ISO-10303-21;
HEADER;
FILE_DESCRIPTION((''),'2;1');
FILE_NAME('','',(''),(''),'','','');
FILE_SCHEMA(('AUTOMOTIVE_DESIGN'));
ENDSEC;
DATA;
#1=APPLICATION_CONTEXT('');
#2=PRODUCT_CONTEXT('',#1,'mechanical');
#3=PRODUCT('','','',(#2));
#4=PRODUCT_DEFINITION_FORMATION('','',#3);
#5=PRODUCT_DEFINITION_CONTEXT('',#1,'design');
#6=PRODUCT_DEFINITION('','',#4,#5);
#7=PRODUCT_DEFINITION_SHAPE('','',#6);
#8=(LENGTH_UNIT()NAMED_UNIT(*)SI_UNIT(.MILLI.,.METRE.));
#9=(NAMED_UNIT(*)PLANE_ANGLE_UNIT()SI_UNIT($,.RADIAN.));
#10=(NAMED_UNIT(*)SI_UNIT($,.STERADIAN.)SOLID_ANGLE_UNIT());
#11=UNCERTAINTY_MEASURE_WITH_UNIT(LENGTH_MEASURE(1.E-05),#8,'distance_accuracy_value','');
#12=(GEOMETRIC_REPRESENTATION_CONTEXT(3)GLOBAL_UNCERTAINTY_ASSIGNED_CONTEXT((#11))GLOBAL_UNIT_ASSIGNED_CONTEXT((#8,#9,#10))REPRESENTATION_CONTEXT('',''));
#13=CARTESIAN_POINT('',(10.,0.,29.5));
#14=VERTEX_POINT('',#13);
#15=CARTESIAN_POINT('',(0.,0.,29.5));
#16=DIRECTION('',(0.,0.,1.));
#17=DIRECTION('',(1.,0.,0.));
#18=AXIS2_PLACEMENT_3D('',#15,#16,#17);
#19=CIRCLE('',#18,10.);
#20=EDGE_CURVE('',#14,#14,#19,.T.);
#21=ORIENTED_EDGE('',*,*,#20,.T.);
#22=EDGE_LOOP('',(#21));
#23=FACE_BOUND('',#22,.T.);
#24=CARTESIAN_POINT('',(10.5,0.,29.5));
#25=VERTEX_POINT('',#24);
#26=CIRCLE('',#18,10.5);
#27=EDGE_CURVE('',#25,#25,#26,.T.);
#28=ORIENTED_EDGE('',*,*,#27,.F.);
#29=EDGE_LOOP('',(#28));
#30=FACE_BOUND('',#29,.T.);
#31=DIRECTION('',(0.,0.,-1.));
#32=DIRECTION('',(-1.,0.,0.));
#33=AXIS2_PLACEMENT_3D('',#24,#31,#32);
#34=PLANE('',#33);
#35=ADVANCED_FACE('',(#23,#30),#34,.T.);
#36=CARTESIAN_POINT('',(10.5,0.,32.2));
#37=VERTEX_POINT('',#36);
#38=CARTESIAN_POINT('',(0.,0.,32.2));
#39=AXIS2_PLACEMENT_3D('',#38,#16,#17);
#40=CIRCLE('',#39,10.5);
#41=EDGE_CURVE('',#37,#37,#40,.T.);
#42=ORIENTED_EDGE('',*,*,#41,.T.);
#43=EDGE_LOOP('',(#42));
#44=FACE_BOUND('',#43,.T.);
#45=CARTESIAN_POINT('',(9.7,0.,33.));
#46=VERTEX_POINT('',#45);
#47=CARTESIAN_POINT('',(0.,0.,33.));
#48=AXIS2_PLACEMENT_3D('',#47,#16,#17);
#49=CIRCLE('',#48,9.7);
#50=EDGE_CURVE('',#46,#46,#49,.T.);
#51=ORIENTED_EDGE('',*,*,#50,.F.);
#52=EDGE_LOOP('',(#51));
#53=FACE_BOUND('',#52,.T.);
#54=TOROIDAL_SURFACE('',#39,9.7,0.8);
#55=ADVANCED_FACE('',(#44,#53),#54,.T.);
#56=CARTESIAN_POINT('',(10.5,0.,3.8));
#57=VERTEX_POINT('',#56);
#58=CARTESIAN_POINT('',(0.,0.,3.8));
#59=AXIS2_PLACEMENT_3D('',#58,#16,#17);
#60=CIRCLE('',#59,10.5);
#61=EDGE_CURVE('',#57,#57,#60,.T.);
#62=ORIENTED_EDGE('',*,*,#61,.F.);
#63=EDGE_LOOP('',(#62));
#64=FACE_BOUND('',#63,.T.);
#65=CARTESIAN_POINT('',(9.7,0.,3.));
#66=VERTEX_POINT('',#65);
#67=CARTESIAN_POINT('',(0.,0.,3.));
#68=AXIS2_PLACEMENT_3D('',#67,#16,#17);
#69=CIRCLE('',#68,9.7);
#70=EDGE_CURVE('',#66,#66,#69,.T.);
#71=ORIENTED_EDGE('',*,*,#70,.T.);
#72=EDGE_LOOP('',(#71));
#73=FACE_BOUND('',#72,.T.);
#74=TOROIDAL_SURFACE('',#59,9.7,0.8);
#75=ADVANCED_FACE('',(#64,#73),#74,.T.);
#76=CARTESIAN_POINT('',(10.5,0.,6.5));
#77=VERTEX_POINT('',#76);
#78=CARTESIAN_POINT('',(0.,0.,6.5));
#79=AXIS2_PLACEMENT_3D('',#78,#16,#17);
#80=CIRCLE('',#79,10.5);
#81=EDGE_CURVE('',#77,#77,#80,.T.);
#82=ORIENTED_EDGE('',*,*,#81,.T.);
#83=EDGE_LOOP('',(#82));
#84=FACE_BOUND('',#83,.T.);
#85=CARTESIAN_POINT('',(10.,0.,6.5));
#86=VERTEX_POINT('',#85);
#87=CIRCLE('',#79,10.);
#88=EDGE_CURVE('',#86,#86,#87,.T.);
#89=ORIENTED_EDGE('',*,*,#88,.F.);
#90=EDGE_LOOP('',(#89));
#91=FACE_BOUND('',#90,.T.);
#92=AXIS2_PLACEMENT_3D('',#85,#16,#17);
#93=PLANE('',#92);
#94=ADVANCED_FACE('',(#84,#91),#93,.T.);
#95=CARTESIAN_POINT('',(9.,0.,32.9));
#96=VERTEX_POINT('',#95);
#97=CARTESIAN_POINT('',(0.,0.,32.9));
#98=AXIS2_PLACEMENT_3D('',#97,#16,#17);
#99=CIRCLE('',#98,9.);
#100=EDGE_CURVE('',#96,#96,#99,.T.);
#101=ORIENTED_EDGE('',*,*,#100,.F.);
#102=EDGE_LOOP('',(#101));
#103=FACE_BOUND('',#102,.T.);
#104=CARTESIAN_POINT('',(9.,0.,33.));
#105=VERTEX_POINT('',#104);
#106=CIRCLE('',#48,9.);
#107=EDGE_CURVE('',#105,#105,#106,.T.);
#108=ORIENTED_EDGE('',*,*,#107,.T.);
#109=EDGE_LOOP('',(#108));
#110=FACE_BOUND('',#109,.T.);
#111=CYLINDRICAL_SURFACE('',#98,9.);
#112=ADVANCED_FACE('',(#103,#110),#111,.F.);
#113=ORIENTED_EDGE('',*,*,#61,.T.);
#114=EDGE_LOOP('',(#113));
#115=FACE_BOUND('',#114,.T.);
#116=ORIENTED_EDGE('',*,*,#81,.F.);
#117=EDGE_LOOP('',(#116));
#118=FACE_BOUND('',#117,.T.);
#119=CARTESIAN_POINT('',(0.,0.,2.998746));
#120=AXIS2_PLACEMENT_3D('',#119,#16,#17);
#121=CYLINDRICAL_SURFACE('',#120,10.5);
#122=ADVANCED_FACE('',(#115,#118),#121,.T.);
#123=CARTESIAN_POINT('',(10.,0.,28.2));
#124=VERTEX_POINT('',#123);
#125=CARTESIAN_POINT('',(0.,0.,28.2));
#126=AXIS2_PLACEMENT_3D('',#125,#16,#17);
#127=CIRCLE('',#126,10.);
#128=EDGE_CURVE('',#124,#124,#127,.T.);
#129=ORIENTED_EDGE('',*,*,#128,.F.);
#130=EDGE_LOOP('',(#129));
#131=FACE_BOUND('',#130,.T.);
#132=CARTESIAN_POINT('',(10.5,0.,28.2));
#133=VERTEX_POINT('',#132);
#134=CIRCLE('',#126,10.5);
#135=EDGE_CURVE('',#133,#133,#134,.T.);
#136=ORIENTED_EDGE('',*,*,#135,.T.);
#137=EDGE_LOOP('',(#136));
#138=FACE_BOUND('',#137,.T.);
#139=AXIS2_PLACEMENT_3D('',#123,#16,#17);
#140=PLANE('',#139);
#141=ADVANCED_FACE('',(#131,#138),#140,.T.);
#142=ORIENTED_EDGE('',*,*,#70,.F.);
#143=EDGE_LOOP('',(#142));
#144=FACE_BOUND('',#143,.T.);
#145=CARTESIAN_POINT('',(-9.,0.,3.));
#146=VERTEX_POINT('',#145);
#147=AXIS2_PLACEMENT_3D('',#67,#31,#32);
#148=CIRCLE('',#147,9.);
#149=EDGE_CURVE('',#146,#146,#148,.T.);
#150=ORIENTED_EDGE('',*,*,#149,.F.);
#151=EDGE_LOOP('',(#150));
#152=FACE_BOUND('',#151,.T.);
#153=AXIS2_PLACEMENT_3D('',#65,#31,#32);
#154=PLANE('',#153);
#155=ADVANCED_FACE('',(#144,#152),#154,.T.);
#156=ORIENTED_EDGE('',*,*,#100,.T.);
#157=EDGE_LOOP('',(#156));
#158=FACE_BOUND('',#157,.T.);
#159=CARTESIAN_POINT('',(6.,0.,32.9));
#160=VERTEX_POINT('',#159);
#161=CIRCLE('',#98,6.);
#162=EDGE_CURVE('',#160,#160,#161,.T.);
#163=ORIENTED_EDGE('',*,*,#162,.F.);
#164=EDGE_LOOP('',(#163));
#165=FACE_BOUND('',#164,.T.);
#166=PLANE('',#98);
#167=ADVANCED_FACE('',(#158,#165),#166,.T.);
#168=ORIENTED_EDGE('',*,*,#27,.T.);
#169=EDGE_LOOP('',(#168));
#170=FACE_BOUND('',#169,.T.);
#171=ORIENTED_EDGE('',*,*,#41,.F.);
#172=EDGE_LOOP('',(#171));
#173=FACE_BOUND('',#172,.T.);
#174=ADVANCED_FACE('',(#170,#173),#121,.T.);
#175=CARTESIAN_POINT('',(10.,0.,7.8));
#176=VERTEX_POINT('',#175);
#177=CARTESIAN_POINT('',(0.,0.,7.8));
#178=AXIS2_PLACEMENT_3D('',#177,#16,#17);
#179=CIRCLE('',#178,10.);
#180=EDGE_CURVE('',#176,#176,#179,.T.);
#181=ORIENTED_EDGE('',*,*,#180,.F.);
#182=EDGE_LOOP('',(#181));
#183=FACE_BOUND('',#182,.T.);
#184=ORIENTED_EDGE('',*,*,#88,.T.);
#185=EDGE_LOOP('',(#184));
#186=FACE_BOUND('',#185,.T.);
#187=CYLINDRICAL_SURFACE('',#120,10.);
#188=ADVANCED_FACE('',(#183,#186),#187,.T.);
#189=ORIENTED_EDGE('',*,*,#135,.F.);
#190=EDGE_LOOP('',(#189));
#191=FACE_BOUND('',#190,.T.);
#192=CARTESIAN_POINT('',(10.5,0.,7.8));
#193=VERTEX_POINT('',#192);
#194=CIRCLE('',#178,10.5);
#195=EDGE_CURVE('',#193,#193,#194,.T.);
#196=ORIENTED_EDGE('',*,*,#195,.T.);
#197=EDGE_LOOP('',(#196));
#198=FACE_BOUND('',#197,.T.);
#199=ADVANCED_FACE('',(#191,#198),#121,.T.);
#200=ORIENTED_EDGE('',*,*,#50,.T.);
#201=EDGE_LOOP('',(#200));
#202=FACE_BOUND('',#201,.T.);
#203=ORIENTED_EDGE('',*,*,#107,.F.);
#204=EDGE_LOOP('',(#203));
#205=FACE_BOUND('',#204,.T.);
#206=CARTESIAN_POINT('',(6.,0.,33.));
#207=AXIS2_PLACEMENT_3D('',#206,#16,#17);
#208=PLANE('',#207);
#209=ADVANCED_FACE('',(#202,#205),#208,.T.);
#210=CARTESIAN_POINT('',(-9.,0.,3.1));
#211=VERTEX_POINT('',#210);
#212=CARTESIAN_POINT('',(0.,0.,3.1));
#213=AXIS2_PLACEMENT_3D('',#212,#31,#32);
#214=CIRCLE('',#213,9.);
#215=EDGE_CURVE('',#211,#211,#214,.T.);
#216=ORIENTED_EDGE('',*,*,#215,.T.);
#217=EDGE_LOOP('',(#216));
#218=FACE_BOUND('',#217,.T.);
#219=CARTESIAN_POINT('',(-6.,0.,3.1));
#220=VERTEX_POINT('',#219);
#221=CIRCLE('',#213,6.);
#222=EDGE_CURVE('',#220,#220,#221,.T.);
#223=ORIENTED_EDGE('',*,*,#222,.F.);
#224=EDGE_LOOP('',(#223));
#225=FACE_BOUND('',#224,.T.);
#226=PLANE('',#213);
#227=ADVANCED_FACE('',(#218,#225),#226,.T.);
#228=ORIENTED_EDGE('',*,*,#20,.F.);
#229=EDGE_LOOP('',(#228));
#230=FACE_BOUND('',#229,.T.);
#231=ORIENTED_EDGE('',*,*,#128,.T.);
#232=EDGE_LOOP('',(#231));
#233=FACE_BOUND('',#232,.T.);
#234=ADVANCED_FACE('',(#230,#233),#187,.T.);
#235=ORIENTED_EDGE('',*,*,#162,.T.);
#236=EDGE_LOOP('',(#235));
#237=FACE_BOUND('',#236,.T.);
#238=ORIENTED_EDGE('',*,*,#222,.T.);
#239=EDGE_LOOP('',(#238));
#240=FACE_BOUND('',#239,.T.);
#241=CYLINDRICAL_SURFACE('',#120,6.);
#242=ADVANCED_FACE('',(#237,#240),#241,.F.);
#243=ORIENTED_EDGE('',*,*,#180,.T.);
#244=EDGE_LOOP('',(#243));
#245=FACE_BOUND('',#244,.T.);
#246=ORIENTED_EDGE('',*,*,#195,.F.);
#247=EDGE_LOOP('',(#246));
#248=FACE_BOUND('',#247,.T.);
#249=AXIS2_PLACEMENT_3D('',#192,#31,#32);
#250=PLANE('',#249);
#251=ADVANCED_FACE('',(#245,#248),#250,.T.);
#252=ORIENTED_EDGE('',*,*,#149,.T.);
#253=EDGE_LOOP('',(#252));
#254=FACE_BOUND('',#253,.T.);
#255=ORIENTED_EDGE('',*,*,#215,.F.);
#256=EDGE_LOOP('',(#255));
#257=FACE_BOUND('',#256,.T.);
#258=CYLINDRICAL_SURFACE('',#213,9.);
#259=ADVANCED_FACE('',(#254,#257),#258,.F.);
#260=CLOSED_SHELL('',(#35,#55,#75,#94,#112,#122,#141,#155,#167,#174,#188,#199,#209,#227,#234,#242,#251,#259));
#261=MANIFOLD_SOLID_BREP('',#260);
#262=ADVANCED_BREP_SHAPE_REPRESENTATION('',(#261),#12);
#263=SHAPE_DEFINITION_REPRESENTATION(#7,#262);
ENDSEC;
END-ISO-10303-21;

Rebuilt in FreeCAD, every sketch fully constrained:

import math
import FreeCAD as App
import Part
import Sketcher
from FreeCAD import Vector

doc = App.newDocument("Part")
body = doc.addObject("PartDesign::Body", "Body")

# Sketch on XZ plane
sketch1 = doc.addObject("Sketcher::SketchObject", "Sketch")
body.addObject(sketch1)
sketch1.AttachmentSupport = (doc.XZ_Plane, [""])
sketch1.MapMode = "FlatFace"
sketch1.addGeometry([
    Part.LineSegment(Vector(9.7, 3, 0), Vector(6, 3, 0)),  # 0
    Part.LineSegment(Vector(6, 3, 0), Vector(6, 33, 0)),  # 1
    Part.LineSegment(Vector(6, 33, 0), Vector(9.7, 33, 0)),  # 2
    Part.ArcOfCircle(Part.Circle(Vector(9.7, 32.2, 0), Vector(0, 0, 1), 0.8), math.radians(0), math.radians(90)),  # 3
    Part.LineSegment(Vector(10.5, 32.2, 0), Vector(10.5, 29.5, 0)),  # 4
    Part.LineSegment(Vector(10.5, 29.5, 0), Vector(10, 29.5, 0)),  # 5
    Part.LineSegment(Vector(10, 29.5, 0), Vector(10, 28.2, 0)),  # 6
    Part.LineSegment(Vector(10, 28.2, 0), Vector(10.5, 28.2, 0)),  # 7
    Part.LineSegment(Vector(10.5, 28.2, 0), Vector(10.5, 7.8, 0)),  # 8
    Part.LineSegment(Vector(10.5, 7.8, 0), Vector(10, 7.8, 0)),  # 9
    Part.LineSegment(Vector(10, 7.8, 0), Vector(10, 6.5, 0)),  # 10
    Part.LineSegment(Vector(10, 6.5, 0), Vector(10.5, 6.5, 0)),  # 11
    Part.LineSegment(Vector(10.5, 6.5, 0), Vector(10.5, 3.8, 0)),  # 12
    Part.ArcOfCircle(Part.Circle(Vector(9.7, 3.8, 0), Vector(0, 0, 1), 0.8), math.radians(-90), math.radians(0)),  # 13
], False)
sketch1.addConstraint([
    Sketcher.Constraint("Coincident", 0, 2, 1, 1),
    Sketcher.Constraint("Coincident", 1, 2, 2, 1),
    Sketcher.Constraint("Tangent", 2, 2, 3, 2),
    Sketcher.Constraint("Tangent", 3, 1, 4, 1),
    Sketcher.Constraint("Coincident", 4, 2, 5, 1),
    Sketcher.Constraint("Coincident", 5, 2, 6, 1),
    Sketcher.Constraint("Coincident", 6, 2, 7, 1),
    Sketcher.Constraint("Coincident", 7, 2, 8, 1),
    Sketcher.Constraint("Coincident", 8, 2, 9, 1),
    Sketcher.Constraint("Coincident", 9, 2, 10, 1),
    Sketcher.Constraint("Coincident", 10, 2, 11, 1),
    Sketcher.Constraint("Coincident", 11, 2, 12, 1),
    Sketcher.Constraint("Tangent", 12, 2, 13, 2),
    Sketcher.Constraint("Tangent", 13, 1, 0, 1),
    Sketcher.Constraint("Horizontal", 0),
    Sketcher.Constraint("Vertical", 1),
    Sketcher.Constraint("Horizontal", 2),
    Sketcher.Constraint("Vertical", 4),
    Sketcher.Constraint("Horizontal", 5),
    Sketcher.Constraint("Vertical", 6),
    Sketcher.Constraint("Horizontal", 7),
    Sketcher.Constraint("Vertical", 8),
    Sketcher.Constraint("Horizontal", 9),
    Sketcher.Constraint("Vertical", 10),
    Sketcher.Constraint("Horizontal", 11),
    Sketcher.Constraint("Vertical", 12),
    Sketcher.Constraint("Equal", 3, 13),
    Sketcher.Constraint("Vertical", 3, 3, 13, 3),
    Sketcher.Constraint("Vertical", 4, 2, 7, 2),
    Sketcher.Constraint("Vertical", 6, 2, 9, 2),
    Sketcher.Constraint("Equal", 6, 10),
    Sketcher.Constraint("Equal", 4, 12),
    Sketcher.Constraint("Radius", 3, 0.8),
    Sketcher.Constraint("DistanceY", 1, 1, 1, 2, 30.0),
    Sketcher.Constraint("DistanceX", 0, 2, 0, 1, 3.7),
    Sketcher.Constraint("DistanceX", 5, 2, 5, 1, 0.5),
    Sketcher.Constraint("DistanceY", 4, 2, 4, 1, 2.7),
    Sketcher.Constraint("DistanceY", 6, 2, 6, 1, 1.3),
    Sketcher.Constraint("DistanceX", -1, 1, 0, 2, 6.0),
    Sketcher.Constraint("DistanceY", -1, 1, 0, 2, 3.0),
])
revolution = doc.addObject("PartDesign::Revolution", "Revolution")
body.addObject(revolution)
revolution.Profile = sketch1
revolution.ReferenceAxis = (sketch1, ["V_Axis"])
revolution.Angle = 360

# Sketch on XY plane
sketch2 = doc.addObject("Sketcher::SketchObject", "Sketch001")
body.addObject(sketch2)
sketch2.AttachmentSupport = (doc.XY_Plane, [""])
sketch2.MapMode = "FlatFace"
sketch2.AttachmentOffset = App.Placement(Vector(0, 0, 33), App.Rotation())
sketch2.addGeometry(Part.Circle(Vector(0, 0, 0), Vector(0, 0, 1), 9), False)
sketch2.addConstraint([
    Sketcher.Constraint("Coincident", 0, 3, -1, 1),
    Sketcher.Constraint("Diameter", 0, 18.0),
])
pocket1 = doc.addObject("PartDesign::Pocket", "Pocket")
body.addObject(pocket1)
pocket1.Profile = sketch2
pocket1.Length = 0.1

# Sketch on XY plane
sketch3 = doc.addObject("Sketcher::SketchObject", "Sketch002")
body.addObject(sketch3)
sketch3.AttachmentSupport = (doc.XY_Plane, [""])
sketch3.MapMode = "FlatFace"
sketch3.AttachmentOffset = App.Placement(Vector(0, 0, 3.1), App.Rotation())
sketch3.addGeometry(Part.Circle(Vector(0, 0, 0), Vector(0, 0, 1), 9), False)
sketch3.addConstraint([
    Sketcher.Constraint("Coincident", 0, 3, -1, 1),
    Sketcher.Constraint("Diameter", 0, 18.0),
])
pocket2 = doc.addObject("PartDesign::Pocket", "Pocket001")
body.addObject(pocket2)
pocket2.Profile = sketch3
pocket2.Length = 0.1

doc.recompute()
